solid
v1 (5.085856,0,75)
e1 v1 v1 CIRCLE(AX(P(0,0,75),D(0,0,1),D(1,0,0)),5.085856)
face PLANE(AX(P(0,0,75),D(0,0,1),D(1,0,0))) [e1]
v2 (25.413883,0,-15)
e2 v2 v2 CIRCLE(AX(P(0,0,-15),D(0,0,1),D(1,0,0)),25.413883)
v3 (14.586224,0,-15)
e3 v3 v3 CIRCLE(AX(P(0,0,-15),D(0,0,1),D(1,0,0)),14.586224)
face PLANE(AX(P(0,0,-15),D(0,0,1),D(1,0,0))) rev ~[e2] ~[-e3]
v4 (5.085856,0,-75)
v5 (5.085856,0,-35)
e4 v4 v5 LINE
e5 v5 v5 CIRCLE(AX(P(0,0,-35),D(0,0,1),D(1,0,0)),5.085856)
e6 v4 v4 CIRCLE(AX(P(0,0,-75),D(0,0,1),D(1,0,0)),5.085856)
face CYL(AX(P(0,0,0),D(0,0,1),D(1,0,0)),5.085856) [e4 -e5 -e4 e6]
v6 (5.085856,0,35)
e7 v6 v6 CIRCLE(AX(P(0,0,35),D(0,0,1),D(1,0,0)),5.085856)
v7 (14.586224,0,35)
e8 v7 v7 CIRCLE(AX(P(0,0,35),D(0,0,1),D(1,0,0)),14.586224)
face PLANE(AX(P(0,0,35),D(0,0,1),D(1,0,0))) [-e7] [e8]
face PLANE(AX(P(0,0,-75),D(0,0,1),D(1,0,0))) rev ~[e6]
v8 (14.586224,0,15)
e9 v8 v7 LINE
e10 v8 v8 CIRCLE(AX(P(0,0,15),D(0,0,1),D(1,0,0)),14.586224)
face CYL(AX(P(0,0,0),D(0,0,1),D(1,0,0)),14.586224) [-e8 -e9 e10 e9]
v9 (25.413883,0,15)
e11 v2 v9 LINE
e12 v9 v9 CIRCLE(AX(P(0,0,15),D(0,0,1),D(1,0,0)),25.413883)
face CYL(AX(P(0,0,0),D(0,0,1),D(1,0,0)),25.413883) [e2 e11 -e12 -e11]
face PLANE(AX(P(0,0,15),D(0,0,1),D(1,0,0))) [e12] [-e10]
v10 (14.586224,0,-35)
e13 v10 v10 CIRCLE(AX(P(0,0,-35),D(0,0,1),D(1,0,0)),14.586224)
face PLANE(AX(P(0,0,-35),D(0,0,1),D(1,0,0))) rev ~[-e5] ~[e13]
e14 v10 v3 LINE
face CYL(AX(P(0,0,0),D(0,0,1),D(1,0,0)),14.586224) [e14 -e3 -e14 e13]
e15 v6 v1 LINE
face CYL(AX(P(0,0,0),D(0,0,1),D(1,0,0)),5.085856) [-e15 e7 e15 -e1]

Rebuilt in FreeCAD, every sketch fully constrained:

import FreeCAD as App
import Part
import Sketcher
Q = App.Units.Quantity

doc = App.newDocument("Part")
body = doc.addObject("PartDesign::Body", "Body")

# Sketch on XY plane
sketch1 = body.newObject("Sketcher::SketchObject", "Sketch")
sketch1.AttachmentSupport = (doc.getObject("XY_Plane"), [""])
sketch1.MapMode = "FlatFace"
sketch1.addGeometry(Part.Circle(App.Vector(0, 0, 0), App.Vector(0, 0, 1), 5.085856), False)
sketch1.addConstraint(Sketcher.Constraint("Coincident", 0, 3, -1, 1))
sketch1.addConstraint(Sketcher.Constraint("Diameter", 0, Q("10.171712 mm")))
pad1 = body.newObject("PartDesign::Pad", "Pad")
pad1.Profile = sketch1
pad1.Length = 150
pad1.Midplane = True

# Sketch on XY plane
sketch2 = body.newObject("Sketcher::SketchObject", "Sketch001")
sketch2.AttachmentSupport = (doc.getObject("XY_Plane"), [""])
sketch2.MapMode = "FlatFace"
sketch2.addGeometry(Part.Circle(App.Vector(0, 0, 0), App.Vector(0, 0, 1), 14.586224), False)
sketch2.addGeometry(Part.Circle(App.Vector(0, 0, 0), App.Vector(0, 0, 1), 5.085856), False)
sketch2.addConstraint(Sketcher.Constraint("Coincident", 0, 3, -1, 1))
sketch2.addConstraint(Sketcher.Constraint("Coincident", 1, 3, -1, 1))
sketch2.addConstraint(Sketcher.Constraint("Diameter", 0, Q("29.172448 mm")))
sketch2.addConstraint(Sketcher.Constraint("Diameter", 1, Q("10.171712 mm")))
pad2 = body.newObject("PartDesign::Pad", "Pad001")
pad2.Profile = sketch2
pad2.Length = 70
pad2.Midplane = True

# Sketch on XY plane
sketch3 = body.newObject("Sketcher::SketchObject", "Sketch002")
sketch3.AttachmentSupport = (doc.getObject("XY_Plane"), [""])
sketch3.MapMode = "FlatFace"
sketch3.addGeometry(Part.Circle(App.Vector(0, 0, 0), App.Vector(0, 0, 1), 25.413883), False)
sketch3.addGeometry(Part.Circle(App.Vector(0, 0, 0), App.Vector(0, 0, 1), 14.586224), False)
sketch3.addConstraint(Sketcher.Constraint("Coincident", 0, 3, -1, 1))
sketch3.addConstraint(Sketcher.Constraint("Coincident", 1, 3, -1, 1))
sketch3.addConstraint(Sketcher.Constraint("Diameter", 0, Q("50.827766 mm")))
sketch3.addConstraint(Sketcher.Constraint("Diameter", 1, Q("29.172448 mm")))
pad3 = body.newObject("PartDesign::Pad", "Pad002")
pad3.Profile = sketch3
pad3.Length = 30
pad3.Midplane = True

doc.recompute()
